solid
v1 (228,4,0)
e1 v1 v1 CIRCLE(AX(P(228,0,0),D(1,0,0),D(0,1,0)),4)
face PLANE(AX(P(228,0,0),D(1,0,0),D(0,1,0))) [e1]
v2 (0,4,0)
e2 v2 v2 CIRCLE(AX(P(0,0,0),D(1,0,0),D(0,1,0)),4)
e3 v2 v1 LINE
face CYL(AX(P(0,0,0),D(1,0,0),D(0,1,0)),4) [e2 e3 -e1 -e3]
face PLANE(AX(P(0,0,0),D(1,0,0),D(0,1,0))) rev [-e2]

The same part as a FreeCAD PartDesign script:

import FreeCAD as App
import Part
import Sketcher
Q = App.Units.Quantity


def add_polygon(sketch, points):
    """Adds a closed chain of lines whose ends are joined by coincident constraints."""
    first, n = sketch.GeometryCount, len(points)
    for a, b in zip(points, points[1:] + points[:1]):
        sketch.addGeometry(Part.LineSegment(App.Vector(*a, 0), App.Vector(*b, 0)), False)
    for i in range(n):
        sketch.addConstraint(Sketcher.Constraint("Coincident", first + i, 2, first + (i + 1) % n, 1))

doc = App.newDocument("Part")
params = doc.addObject("Spreadsheet::Sheet", "Params")
for row, (alias, value) in enumerate([
    ("sketch1_width", "228 mm"),
    ("sketch1_height", "4 mm"),
    ("revolution_angle", "360 deg"),
], start=1):
    params.set(f"A{row}", alias)
    params.set(f"B{row}", "=" + value)
    params.setAlias(f"B{row}", alias)

body = doc.addObject("PartDesign::Body", "Body")

# Sketch on XY plane
sketch1 = body.newObject("Sketcher::SketchObject", "Sketch")
sketch1.AttachmentSupport = (doc.getObject("XY_Plane"), [""])
sketch1.MapMode = "FlatFace"
add_polygon(sketch1, [(0, 4), (0, 0), (228, 0), (228, 4)])  # lines 0-3
sketch1.addConstraint(Sketcher.Constraint("Vertical", 0))
sketch1.addConstraint(Sketcher.Constraint("Horizontal", 1))
sketch1.addConstraint(Sketcher.Constraint("Vertical", 2))
sketch1.addConstraint(Sketcher.Constraint("Horizontal", 3))
sketch1.addConstraint(Sketcher.Constraint("Coincident", 0, 2, -1, 1))
sketch1.addConstraint(Sketcher.Constraint("DistanceX", 1, 1, 1, 2, Q("228 mm")))
sketch1.addConstraint(Sketcher.Constraint("DistanceY", 0, 2, 0, 1, Q("4 mm")))
sketch1.setExpression("Constraints[9]", "Params.sketch1_width")
sketch1.setExpression("Constraints[10]", "Params.sketch1_height")
revolution = body.newObject("PartDesign::Revolution", "Revolution")
revolution.Profile = sketch1
revolution.ReferenceAxis = (sketch1, ["H_Axis"])
revolution.setExpression("Angle", "Params.revolution_angle")

doc.recompute()
